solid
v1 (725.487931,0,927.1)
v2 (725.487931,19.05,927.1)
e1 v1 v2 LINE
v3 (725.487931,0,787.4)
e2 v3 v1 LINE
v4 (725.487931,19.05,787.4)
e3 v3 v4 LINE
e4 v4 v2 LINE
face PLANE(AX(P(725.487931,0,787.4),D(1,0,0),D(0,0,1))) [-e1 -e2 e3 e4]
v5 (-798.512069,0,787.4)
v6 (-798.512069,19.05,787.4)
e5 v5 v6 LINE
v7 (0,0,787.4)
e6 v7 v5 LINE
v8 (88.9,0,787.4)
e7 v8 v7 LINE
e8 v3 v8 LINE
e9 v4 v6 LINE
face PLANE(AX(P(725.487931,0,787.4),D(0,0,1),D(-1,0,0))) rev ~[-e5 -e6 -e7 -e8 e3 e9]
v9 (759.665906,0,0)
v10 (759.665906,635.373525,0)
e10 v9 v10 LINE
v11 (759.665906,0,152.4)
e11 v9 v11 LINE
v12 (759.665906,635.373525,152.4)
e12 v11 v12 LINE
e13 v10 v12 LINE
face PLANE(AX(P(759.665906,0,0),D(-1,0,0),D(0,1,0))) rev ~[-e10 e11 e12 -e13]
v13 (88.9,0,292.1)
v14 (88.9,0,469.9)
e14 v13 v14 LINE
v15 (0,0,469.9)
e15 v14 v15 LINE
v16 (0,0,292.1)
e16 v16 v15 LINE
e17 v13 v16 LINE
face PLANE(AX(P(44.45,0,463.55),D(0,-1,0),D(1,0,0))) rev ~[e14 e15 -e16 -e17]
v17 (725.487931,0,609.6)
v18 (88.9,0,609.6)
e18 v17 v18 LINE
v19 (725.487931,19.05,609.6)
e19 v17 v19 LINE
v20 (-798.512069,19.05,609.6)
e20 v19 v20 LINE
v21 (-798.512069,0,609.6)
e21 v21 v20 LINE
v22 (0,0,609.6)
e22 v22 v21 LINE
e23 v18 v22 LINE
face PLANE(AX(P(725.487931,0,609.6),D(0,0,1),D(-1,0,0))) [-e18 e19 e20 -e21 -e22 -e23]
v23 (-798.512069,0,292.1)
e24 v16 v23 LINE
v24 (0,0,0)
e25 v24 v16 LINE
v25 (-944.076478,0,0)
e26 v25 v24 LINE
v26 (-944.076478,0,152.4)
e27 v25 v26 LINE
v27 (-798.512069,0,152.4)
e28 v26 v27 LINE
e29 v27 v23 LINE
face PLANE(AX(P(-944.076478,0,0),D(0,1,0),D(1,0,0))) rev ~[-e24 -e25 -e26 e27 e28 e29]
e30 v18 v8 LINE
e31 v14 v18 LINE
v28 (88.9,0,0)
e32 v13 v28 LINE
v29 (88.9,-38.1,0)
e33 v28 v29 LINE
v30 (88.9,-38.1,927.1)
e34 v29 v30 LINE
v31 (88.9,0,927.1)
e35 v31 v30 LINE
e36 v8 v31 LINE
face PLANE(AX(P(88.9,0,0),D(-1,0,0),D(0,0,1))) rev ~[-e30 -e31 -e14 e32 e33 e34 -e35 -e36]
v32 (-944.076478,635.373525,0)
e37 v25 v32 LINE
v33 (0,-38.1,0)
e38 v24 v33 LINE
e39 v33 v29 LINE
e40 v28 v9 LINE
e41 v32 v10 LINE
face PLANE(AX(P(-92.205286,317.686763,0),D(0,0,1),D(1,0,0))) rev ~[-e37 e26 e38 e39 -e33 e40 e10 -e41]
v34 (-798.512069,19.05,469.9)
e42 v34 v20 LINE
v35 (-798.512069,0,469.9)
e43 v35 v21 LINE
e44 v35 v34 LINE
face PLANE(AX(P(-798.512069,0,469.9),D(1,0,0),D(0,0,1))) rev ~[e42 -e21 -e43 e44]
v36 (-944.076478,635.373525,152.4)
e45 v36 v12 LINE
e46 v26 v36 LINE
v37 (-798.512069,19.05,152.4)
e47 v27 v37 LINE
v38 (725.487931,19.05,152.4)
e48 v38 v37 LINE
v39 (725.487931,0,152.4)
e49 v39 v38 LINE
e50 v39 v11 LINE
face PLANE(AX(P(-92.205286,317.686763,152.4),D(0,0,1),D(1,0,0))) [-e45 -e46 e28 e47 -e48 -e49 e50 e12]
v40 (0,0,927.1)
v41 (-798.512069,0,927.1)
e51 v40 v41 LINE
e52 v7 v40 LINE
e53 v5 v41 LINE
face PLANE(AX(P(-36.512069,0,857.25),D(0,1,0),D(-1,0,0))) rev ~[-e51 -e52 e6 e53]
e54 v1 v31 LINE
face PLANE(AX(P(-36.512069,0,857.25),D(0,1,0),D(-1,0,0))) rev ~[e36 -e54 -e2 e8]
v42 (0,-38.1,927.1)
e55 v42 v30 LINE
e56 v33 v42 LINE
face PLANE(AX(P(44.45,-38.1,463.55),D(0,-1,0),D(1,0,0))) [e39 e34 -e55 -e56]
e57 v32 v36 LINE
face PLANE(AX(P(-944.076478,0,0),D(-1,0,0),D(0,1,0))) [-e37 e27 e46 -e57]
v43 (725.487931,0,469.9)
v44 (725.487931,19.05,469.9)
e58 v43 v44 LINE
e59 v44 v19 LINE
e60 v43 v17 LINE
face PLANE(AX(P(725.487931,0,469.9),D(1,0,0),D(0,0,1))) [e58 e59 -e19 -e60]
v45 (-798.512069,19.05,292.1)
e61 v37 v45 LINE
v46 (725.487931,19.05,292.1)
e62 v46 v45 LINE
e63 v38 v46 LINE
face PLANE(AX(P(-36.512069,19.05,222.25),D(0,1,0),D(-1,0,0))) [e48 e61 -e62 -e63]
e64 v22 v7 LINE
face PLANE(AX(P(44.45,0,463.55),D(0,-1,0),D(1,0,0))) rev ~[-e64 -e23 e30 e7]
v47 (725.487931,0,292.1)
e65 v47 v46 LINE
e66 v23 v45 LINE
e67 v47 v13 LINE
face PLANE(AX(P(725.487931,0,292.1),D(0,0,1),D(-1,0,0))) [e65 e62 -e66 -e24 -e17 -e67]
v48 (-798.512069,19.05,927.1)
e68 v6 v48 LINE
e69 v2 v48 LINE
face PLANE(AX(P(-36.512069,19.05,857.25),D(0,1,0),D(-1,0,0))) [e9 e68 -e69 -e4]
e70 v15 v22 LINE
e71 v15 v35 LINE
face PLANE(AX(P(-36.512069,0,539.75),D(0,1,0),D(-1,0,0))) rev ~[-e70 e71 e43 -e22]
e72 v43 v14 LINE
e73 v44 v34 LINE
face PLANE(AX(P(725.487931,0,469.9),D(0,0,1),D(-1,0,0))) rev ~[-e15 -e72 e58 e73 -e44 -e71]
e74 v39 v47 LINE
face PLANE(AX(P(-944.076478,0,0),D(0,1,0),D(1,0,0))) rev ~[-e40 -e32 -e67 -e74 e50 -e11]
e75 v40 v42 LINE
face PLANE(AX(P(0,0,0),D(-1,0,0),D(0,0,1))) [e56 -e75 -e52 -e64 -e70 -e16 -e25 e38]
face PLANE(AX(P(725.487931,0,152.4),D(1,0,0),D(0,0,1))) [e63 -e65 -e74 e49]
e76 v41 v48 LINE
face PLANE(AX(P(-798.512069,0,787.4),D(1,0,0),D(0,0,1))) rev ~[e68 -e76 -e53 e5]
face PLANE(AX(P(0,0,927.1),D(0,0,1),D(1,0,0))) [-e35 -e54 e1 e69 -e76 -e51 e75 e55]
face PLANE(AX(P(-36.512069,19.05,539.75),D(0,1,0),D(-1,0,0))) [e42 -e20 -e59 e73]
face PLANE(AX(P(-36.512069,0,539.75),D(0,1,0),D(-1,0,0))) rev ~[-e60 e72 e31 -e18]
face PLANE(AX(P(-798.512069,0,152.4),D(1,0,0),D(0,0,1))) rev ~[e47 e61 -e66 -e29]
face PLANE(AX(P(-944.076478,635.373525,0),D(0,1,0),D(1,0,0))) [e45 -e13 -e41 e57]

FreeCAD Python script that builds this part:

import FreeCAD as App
import Part
import Sketcher
Q = App.Units.Quantity


def add_polygon(sketch, points):
    """Adds a closed chain of lines whose ends are joined by coincident constraints."""
    first, n = sketch.GeometryCount, len(points)
    for a, b in zip(points, points[1:] + points[:1]):
        sketch.addGeometry(Part.LineSegment(App.Vector(*a, 0), App.Vector(*b, 0)), False)
    for i in range(n):
        sketch.addConstraint(Sketcher.Constraint("Coincident", first + i, 2, first + (i + 1) % n, 1))

doc = App.newDocument("Part")
body = doc.addObject("PartDesign::Body", "Body")

# Sketch on XZ plane
sketch1 = doc.addObject("Sketcher::SketchObject", "Sketch")
body.addObject(sketch1)
sketch1.AttachmentSupport = (doc.XZ_Plane, [""])
sketch1.MapMode = "FlatFace"
add_polygon(sketch1, [(0, 927), (0, 0), (89, 0), (89, 927)])  # lines 0-3
sketch1.addConstraint([
    Sketcher.Constraint("Vertical", 0),
    Sketcher.Constraint("Horizontal", 1),
    Sketcher.Constraint("Vertical", 2),
    Sketcher.Constraint("Horizontal", 3),
    Sketcher.Constraint("Coincident", 0, 2, -1, 1),
    Sketcher.Constraint("DistanceX", 1, 1, 1, 2, Q("3.5 in")),
    Sketcher.Constraint("DistanceY", 0, 2, 0, 1, Q("36.5 in")),
])
pad1 = doc.addObject("PartDesign::Pad", "Pad")
body.addObject(pad1)
pad1.Profile = sketch1
pad1.Length = Q("1.5 in")

# Sketch on XZ plane
sketch2 = doc.addObject("Sketcher::SketchObject", "Sketch001")
body.addObject(sketch2)
sketch2.AttachmentSupport = (doc.XZ_Plane, [""])
sketch2.MapMode = "FlatFace"
add_polygon(sketch2, [(725, 292), (725, 152), (-799, 152), (-799, 292)])  # lines 0-3
add_polygon(sketch2, [(725, 610), (725, 470), (-799, 470), (-799, 610)])  # lines 4-7
add_polygon(sketch2, [(725, 927), (725, 787), (-799, 787), (-799, 927)])  # lines 8-11
sketch2.addConstraint([
    Sketcher.Constraint("Vertical", 0),
    Sketcher.Constraint("Horizontal", 1),
    Sketcher.Constraint("Vertical", 2),
    Sketcher.Constraint("Horizontal", 3),
    Sketcher.Constraint("Vertical", 4),
    Sketcher.Constraint("Horizontal", 5),
    Sketcher.Constraint("Vertical", 6),
    Sketcher.Constraint("Horizontal", 7),
    Sketcher.Constraint("Vertical", 8),
    Sketcher.Constraint("Horizontal", 9),
    Sketcher.Constraint("Vertical", 10),
    Sketcher.Constraint("Horizontal", 11),
    Sketcher.Constraint("Vertical", 3, 2, 4, 2),
    Sketcher.Constraint("Vertical", 2, 2, 5, 2),
    Sketcher.Constraint("Vertical", 7, 2, 8, 2),
    Sketcher.Constraint("Vertical", 6, 2, 9, 2),
    Sketcher.Constraint("Equal", 2, 4),
    Sketcher.Constraint("Equal", 6, 8),
    Sketcher.Constraint("DistanceX", 1, 2, 1, 1, Q("60 in")),
    Sketcher.Constraint("DistanceY", 0, 2, 0, 1, Q("5.5 in")),
    Sketcher.Constraint("DistanceY", -1, 1, 0, 2, Q("6 in")),
    Sketcher.Constraint("DistanceY", -1, 1, 6, 2, Q("24 in")),
    Sketcher.Constraint("DistanceY", -1, 1, 8, 2, Q("31 in")),
    Sketcher.Constraint("DistanceX", -1, 1, 0, 2, Q("725.487931 mm")),
])
pad2 = doc.addObject("PartDesign::Pad", "Pad001")
body.addObject(pad2)
pad2.Profile = sketch2
pad2.Length = Q("0.75 in")
pad2.Reversed = True

# Sketch on XY plane
sketch3 = doc.addObject("Sketcher::SketchObject", "Sketch002")
body.addObject(sketch3)
sketch3.AttachmentSupport = (doc.XY_Plane, [""])
sketch3.MapMode = "FlatFace"
add_polygon(sketch3, [(-944, 635), (-944, 0), (760, 0), (760, 635)])  # lines 0-3
sketch3.addConstraint([
    Sketcher.Constraint("Vertical", 0),
    Sketcher.Constraint("Horizontal", 1),
    Sketcher.Constraint("Vertical", 2),
    Sketcher.Constraint("Horizontal", 3),
    Sketcher.Constraint("PointOnObject", 0, 2, -1),
    Sketcher.Constraint("DistanceX", 1, 1, 1, 2, Q("1703.742385 mm")),
    Sketcher.Constraint("DistanceY", 0, 2, 0, 1, Q("635.373525 mm")),
    Sketcher.Constraint("DistanceX", 0, 2, -1, 1, Q("944.076478 mm")),
])
pad3 = doc.addObject("PartDesign::Pad", "Pad002")
body.addObject(pad3)
pad3.Profile = sketch3
pad3.Length = Q("6 in")

doc.recompute()
